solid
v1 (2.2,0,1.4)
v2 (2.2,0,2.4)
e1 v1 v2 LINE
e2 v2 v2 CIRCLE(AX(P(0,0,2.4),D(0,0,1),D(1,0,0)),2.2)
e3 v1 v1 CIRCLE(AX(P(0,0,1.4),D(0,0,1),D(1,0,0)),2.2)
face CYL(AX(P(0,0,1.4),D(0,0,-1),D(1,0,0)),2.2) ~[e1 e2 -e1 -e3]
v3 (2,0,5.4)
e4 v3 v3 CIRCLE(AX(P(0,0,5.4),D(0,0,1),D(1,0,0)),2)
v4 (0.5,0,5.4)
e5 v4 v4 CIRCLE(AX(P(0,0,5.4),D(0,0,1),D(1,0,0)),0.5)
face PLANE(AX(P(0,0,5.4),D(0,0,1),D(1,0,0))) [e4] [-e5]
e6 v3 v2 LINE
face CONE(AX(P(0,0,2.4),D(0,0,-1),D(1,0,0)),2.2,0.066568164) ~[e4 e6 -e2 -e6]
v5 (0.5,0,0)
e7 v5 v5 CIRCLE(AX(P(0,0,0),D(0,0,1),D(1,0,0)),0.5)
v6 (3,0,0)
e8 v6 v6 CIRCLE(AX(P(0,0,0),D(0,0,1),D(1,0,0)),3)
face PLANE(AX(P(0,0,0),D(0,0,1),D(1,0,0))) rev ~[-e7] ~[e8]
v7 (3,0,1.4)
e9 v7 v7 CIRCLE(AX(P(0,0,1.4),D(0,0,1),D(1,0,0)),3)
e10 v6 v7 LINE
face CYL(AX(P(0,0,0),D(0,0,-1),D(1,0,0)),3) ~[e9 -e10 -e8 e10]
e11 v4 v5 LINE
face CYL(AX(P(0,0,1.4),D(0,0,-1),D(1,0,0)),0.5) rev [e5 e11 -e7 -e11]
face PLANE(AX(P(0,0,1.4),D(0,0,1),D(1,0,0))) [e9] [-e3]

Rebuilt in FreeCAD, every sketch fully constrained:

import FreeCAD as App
import Part
import Sketcher
from FreeCAD import Vector
Q = App.Units.Quantity


def edges_at(feature, points):
    """Names of the edges that pass closest to the given points."""
    edges = feature.Shape.Edges
    near = lambda p: min(range(len(edges)), key=lambda i: edges[i].distToShape(Part.Vertex(*p))[0])
    return sorted({f"Edge{near(p) + 1}" for p in points})

doc = App.newDocument("Part")
body = doc.addObject("PartDesign::Body", "Body")

# Sketch on XY plane
sketch1 = body.newObject("Sketcher::SketchObject", "Sketch")
sketch1.AttachmentSupport = (doc.getObject("XY_Plane"), [""])
sketch1.MapMode = "FlatFace"
sketch1.addGeometry([
    Part.Circle(Vector(0, 0, 0), Vector(0, 0, 1), 3),
    Part.Circle(Vector(0, 0, 0), Vector(0, 0, 1), 0.5),
], False)
sketch1.addConstraint([
    Sketcher.Constraint("Coincident", 0, 3, -1, 1),
    Sketcher.Constraint("Coincident", 1, 3, -1, 1),
    Sketcher.Constraint("Diameter", 0, Q("6 mm")),
    Sketcher.Constraint("Diameter", 1, Q("1 mm")),
])
pad1 = body.newObject("PartDesign::Pad", "Pad")
pad1.Profile = sketch1
pad1.Length = 1.4

# Sketch on XY plane
sketch2 = body.newObject("Sketcher::SketchObject", "Sketch001")
sketch2.AttachmentSupport = (doc.getObject("XY_Plane"), [""])
sketch2.MapMode = "FlatFace"
sketch2.AttachmentOffset = App.Placement(Vector(0, 0, 1.4), App.Rotation())
sketch2.addGeometry([
    Part.Circle(Vector(0, 0, 0), Vector(0, 0, 1), 2.2),
    Part.Circle(Vector(0, 0, 0), Vector(0, 0, 1), 0.5),
], False)
sketch2.addConstraint([
    Sketcher.Constraint("Coincident", 0, 3, -1, 1),
    Sketcher.Constraint("Coincident", 1, 3, -1, 1),
    Sketcher.Constraint("Diameter", 1, Q("1 mm")),
    Sketcher.Constraint("Diameter", 0, Q("4.4 mm")),
])
pad2 = body.newObject("PartDesign::Pad", "Pad001")
pad2.Profile = sketch2
pad2.Length = 4
doc.recompute()

chamfer = body.newObject("PartDesign::Chamfer", "Chamfer")
chamfer.Base = (pad2, edges_at(pad2, [(-2.2, 0, 5.4)]))
chamfer.ChamferType = "Two distances"
chamfer.Size = 0.2
chamfer.Size2 = 3
chamfer.FlipDirection = True

doc.recompute()
